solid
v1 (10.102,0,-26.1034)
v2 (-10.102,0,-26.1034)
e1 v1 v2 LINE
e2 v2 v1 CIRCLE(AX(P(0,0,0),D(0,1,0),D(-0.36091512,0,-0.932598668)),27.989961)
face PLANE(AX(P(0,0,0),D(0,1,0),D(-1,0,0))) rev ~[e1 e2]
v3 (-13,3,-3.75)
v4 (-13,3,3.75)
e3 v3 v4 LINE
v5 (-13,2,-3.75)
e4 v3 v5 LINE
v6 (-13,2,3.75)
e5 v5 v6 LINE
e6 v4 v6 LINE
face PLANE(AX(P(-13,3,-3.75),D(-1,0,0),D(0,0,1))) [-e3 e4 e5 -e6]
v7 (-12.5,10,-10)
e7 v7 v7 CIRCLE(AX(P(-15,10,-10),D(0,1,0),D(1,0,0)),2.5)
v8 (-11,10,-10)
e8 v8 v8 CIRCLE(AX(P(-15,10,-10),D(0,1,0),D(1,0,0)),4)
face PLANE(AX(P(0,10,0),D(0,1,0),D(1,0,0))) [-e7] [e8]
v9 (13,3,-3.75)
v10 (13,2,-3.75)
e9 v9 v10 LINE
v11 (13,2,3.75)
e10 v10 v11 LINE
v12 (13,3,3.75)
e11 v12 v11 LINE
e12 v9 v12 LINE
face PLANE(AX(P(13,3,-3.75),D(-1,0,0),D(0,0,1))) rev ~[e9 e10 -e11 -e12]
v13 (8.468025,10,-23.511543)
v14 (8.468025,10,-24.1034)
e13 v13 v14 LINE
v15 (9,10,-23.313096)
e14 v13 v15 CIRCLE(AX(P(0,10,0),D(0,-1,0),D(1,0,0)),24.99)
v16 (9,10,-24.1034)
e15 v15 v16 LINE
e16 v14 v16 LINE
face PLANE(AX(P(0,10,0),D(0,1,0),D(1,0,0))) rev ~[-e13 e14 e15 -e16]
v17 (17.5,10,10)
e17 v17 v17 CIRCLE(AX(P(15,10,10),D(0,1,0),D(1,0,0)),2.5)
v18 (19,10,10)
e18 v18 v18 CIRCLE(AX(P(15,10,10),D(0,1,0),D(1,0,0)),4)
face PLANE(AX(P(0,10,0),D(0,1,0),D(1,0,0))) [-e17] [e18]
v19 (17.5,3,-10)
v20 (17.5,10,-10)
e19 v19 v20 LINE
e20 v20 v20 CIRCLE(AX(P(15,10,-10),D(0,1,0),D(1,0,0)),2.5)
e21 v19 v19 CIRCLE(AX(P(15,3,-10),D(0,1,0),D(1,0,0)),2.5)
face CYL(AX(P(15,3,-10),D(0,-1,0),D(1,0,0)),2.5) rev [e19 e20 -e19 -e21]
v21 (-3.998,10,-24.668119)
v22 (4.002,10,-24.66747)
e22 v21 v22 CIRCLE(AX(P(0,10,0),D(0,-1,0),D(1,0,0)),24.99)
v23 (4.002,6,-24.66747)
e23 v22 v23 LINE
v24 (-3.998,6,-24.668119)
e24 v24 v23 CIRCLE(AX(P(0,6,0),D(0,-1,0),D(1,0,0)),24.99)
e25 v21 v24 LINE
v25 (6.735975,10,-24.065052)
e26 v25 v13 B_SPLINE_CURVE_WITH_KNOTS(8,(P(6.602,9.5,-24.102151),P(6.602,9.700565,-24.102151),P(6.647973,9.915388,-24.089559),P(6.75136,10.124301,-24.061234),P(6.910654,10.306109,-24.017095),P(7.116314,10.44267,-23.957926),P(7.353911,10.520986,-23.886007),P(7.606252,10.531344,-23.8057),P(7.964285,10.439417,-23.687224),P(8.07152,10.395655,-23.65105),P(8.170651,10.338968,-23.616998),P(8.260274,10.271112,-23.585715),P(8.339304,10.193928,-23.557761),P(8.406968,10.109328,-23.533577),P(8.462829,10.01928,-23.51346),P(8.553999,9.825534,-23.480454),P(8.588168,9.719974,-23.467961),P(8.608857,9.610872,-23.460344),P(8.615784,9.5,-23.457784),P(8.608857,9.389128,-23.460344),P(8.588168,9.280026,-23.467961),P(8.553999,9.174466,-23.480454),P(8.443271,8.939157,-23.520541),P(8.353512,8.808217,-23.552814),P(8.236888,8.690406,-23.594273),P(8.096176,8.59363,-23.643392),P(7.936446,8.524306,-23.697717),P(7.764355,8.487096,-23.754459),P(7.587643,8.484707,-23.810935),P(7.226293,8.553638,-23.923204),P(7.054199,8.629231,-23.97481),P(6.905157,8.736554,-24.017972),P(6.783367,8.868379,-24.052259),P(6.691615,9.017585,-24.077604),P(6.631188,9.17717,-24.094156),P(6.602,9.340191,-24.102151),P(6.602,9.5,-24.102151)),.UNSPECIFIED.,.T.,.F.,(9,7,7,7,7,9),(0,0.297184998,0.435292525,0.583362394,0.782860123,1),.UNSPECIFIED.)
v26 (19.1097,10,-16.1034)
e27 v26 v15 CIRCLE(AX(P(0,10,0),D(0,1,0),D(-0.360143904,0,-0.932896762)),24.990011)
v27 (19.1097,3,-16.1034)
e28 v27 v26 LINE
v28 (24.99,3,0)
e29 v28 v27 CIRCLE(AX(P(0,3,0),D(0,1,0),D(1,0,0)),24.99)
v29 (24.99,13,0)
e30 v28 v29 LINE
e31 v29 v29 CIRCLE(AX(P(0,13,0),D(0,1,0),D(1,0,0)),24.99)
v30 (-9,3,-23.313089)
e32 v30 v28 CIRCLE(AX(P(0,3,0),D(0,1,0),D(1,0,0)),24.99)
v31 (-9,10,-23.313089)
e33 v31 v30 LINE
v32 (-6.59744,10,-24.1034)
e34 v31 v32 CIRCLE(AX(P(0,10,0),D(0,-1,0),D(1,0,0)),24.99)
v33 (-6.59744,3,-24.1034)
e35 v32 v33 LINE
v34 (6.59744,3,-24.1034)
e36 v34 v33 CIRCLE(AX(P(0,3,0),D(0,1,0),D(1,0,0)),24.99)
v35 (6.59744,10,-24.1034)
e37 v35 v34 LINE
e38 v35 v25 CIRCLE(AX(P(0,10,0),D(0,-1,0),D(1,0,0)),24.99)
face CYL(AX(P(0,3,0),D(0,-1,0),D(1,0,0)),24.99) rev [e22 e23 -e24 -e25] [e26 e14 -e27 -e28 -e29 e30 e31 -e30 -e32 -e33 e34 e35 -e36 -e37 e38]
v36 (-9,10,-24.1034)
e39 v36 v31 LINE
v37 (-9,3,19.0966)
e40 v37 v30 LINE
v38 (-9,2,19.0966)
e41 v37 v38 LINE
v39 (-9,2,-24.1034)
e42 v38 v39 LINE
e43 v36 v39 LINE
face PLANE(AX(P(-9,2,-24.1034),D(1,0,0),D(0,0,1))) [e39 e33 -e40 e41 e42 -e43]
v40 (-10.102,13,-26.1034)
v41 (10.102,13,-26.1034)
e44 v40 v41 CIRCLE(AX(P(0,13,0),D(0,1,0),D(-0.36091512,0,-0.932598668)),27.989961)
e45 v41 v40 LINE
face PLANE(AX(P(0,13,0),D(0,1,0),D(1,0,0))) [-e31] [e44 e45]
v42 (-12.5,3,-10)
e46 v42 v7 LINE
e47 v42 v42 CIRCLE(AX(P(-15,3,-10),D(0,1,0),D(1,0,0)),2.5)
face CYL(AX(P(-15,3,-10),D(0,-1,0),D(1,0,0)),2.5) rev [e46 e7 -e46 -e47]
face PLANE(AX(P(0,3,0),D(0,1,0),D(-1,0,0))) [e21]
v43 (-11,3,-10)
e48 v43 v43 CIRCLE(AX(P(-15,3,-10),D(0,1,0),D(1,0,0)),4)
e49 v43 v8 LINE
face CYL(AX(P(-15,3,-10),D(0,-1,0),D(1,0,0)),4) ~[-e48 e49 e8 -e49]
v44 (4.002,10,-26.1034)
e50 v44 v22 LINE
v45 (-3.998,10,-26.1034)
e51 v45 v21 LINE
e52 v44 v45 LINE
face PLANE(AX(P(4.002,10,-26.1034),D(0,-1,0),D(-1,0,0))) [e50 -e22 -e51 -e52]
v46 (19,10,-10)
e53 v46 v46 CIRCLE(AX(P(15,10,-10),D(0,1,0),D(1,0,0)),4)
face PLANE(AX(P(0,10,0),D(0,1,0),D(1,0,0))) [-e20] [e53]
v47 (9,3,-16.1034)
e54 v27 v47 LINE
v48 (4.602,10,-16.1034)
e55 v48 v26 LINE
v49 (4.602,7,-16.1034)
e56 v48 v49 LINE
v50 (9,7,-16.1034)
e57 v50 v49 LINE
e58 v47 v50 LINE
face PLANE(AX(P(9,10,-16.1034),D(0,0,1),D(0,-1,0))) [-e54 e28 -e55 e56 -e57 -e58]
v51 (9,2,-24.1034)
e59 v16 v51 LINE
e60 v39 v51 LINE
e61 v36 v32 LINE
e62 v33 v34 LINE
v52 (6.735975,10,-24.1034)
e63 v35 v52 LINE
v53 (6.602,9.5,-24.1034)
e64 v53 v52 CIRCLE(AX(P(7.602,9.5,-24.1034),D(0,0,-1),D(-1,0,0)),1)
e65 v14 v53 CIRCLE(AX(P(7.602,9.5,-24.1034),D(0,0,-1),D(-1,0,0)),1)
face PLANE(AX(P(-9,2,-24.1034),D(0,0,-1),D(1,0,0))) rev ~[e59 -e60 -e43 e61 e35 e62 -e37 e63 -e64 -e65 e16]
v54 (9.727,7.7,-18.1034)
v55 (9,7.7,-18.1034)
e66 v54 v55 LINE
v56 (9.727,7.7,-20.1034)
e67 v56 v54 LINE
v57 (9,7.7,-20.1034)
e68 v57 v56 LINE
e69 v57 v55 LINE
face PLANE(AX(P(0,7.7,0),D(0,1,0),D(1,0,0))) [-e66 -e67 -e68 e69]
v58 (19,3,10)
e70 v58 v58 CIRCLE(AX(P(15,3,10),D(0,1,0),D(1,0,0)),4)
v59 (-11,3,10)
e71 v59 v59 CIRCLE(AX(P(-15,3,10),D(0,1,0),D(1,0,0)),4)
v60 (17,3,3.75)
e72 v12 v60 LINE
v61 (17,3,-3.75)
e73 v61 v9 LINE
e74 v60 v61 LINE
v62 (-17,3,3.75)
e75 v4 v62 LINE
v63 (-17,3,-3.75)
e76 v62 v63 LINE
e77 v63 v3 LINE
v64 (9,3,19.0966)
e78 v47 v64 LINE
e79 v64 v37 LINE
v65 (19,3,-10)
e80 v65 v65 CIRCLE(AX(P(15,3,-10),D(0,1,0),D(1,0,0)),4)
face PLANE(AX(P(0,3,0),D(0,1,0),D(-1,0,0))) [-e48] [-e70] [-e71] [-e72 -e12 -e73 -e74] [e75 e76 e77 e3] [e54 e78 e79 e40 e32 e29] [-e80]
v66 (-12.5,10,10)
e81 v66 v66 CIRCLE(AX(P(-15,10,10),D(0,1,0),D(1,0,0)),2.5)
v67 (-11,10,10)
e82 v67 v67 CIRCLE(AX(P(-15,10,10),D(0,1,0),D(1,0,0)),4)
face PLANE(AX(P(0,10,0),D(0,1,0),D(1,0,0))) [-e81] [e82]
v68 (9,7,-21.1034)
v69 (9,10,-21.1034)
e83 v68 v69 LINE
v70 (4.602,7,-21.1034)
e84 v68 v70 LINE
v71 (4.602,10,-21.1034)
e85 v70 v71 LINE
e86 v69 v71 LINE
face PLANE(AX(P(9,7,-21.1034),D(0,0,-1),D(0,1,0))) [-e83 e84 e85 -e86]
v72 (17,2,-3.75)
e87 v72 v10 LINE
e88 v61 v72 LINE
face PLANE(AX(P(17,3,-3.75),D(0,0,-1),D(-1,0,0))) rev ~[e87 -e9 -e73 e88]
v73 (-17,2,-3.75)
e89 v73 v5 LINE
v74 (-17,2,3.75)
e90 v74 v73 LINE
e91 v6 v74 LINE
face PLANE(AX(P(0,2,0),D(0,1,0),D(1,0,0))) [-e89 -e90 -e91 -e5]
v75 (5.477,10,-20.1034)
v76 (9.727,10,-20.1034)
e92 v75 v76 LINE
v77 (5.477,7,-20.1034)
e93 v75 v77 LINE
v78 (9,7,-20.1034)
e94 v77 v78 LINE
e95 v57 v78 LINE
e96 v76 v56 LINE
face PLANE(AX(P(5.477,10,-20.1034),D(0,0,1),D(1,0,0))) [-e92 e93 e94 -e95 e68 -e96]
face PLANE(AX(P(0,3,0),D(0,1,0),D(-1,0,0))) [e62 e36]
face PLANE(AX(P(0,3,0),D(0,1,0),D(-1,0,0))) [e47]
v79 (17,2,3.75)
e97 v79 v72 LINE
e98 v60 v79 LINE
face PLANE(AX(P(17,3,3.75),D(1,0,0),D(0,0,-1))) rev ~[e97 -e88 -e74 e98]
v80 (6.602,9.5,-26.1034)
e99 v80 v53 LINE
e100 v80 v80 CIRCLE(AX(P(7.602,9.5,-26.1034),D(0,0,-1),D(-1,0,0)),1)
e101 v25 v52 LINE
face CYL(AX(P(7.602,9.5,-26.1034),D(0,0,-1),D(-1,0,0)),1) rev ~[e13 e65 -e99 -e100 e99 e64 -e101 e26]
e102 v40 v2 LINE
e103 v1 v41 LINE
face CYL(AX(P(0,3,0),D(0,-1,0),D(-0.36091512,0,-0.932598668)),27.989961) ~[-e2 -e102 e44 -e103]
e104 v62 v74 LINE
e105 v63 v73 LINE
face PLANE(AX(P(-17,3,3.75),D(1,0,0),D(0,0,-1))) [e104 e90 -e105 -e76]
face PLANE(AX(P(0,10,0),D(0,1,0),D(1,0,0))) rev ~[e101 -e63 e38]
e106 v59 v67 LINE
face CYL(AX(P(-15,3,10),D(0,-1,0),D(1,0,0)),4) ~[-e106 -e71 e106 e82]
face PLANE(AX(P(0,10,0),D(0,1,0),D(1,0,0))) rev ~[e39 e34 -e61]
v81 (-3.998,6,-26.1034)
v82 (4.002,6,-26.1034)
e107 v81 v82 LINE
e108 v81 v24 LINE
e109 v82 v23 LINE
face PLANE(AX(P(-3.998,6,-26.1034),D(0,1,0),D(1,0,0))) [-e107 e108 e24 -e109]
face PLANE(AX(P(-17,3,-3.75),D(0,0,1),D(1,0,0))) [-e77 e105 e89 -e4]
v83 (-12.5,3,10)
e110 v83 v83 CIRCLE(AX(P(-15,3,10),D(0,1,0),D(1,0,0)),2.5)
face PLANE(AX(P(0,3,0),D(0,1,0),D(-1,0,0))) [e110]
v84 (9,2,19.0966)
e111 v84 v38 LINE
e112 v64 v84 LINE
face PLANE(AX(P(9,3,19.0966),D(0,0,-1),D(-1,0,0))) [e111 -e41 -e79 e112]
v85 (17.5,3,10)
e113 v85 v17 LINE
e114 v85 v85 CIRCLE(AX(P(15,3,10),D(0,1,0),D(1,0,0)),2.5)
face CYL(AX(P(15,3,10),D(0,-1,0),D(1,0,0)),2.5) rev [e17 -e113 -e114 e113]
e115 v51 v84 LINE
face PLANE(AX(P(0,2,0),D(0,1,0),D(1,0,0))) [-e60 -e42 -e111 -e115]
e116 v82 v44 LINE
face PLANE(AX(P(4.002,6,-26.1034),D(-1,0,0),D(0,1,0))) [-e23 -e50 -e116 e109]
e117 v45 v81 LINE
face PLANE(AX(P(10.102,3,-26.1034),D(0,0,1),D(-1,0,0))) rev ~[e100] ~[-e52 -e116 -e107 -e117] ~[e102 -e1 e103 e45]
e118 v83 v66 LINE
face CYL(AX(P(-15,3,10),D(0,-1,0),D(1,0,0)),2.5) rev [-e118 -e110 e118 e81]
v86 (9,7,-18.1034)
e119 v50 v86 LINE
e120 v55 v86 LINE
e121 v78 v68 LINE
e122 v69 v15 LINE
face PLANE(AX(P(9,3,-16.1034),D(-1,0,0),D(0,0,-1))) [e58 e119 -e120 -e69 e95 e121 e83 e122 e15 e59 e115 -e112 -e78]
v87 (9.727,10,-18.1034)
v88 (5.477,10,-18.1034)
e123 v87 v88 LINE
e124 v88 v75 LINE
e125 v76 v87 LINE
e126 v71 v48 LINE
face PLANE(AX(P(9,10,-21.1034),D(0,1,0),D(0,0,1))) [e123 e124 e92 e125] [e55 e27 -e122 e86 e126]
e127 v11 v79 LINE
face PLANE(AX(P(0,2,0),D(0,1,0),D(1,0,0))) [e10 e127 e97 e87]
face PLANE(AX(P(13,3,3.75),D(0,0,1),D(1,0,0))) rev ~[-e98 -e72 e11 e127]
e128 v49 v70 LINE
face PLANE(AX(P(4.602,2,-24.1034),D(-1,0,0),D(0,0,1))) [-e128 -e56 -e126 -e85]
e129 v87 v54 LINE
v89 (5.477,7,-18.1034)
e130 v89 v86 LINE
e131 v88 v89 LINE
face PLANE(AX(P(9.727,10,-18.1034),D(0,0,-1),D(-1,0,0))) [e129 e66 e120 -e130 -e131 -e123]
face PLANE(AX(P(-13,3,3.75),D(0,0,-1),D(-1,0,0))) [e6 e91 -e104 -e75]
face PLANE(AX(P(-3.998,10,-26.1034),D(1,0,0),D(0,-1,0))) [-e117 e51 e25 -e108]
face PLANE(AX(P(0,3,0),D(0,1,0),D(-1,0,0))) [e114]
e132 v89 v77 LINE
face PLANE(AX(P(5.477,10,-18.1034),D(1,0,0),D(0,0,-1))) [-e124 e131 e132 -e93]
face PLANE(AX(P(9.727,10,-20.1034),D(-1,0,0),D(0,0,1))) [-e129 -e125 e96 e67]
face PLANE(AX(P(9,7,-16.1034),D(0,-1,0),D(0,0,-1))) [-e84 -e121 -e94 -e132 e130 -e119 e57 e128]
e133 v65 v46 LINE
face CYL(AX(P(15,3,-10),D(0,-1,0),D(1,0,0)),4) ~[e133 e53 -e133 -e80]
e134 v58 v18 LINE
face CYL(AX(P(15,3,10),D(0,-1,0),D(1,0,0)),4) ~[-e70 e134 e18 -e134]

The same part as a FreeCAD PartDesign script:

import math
import FreeCAD as App
import Part
import Sketcher

V = App.Vector
Q = App.Units.Quantity

doc = App.newDocument("Part")
params = doc.addObject("Spreadsheet::Sheet", "Params")
for row, (alias, value) in enumerate([
    ("sketch1_radius", "27.99 mm"),
    ("pad1_length", "3 mm"),
    ("sketch2_diameter", "49.98 mm"),
    ("sketch2_radius", "27.99 mm"),
    ("pad2_length", "10 mm"),
    ("sketch3_diameter", "8 mm"),
    ("sketch3_diameter2", "5 mm"),
    ("pad3_length", "7 mm"),
    ("sketch4_width", "18 mm"),
    ("sketch4_width2", "4 mm"),
    ("sketch4_height", "43.2 mm"),
    ("sketch4_height2", "7.5 mm"),
    ("pocket1_length", "1 mm"),
    ("sketch5_width", "18 mm"),
    ("sketch5_height", "43.2 mm"),
    ("pocket2_length", "8 mm"),
    ("sketch6_diameter", "2 mm"),
    ("sketch6_width", "8 mm"),
    ("sketch6_height", "4 mm"),
    ("pocket3_length", "10 mm"),
    ("sketch7_radius", "24.99 mm"),
    ("pad4_length", "7 mm"),
    ("sketch8_width", "3 mm"),
    ("sketch8_height", "5 mm"),
    ("pad5_length", "4.398 mm"),
    ("sketch9_height", "2 mm"),
    ("sketch9_width", "4.25 mm"),
    ("pocket4_length", "2.3 mm"),
    ("sketch10_height", "2 mm"),
], start=1):
    params.set(f"A{row}", alias)
    params.set(f"B{row}", "=" + value)
    params.setAlias(f"B{row}", alias)

body = doc.addObject("PartDesign::Body", "Body")

# Sketch on XZ plane
sketch1 = doc.addObject("Sketcher::SketchObject", "Sketch")
body.addObject(sketch1)
sketch1.AttachmentSupport = (doc.XZ_Plane, [""])
sketch1.MapMode = "FlatFace"
sketch1.addGeometry(Part.ArcOfCircle(Part.Circle(V(0, 0, 0), V(0, 0, 1), 28), math.radians(-69), math.radians(249)), False)
sketch1.addGeometry(Part.LineSegment(V(10, -26, 0), V(-10, -26, 0)), False)
sketch1.addConstraint(Sketcher.Constraint("Coincident", 0, 1, 1, 1))
sketch1.addConstraint(Sketcher.Constraint("Coincident", 1, 2, 0, 2))
sketch1.addConstraint(Sketcher.Constraint("Horizontal", 1))
sketch1.addConstraint(Sketcher.Constraint("Coincident", 0, 3, -1, 1))
sketch1.addConstraint(Sketcher.Constraint("DistanceX", 1, 2, 1, 1, Q("20.204 mm")))
sketch1.addConstraint(Sketcher.Constraint("Radius", 0, Q("27.99 mm")))
sketch1.setExpression("Constraints[5]", "Params.sketch1_radius")
pad1 = doc.addObject("PartDesign::Pad", "Pad")
body.addObject(pad1)
pad1.Profile = sketch1
pad1.setExpression("Length", "Params.pad1_length")
pad1.Reversed = True

# Sketch on XZ plane
sketch2 = doc.addObject("Sketcher::SketchObject", "Sketch001")
body.addObject(sketch2)
sketch2.AttachmentSupport = (doc.XZ_Plane, [""])
sketch2.MapMode = "FlatFace"
sketch2.AttachmentOffset = App.Placement(V(0, 0, -3), App.Rotation())
sketch2.addGeometry(Part.ArcOfCircle(Part.Circle(V(0, 0, 0), V(0, 0, 1), 28), math.radians(-69), math.radians(249)), False)
sketch2.addGeometry(Part.LineSegment(V(10, -26, 0), V(-10, -26, 0)), False)
sketch2.addGeometry(Part.Circle(V(0, 0, 0), V(0, 0, 1), 25), False)
sketch2.addConstraint(Sketcher.Constraint("Coincident", 0, 1, 1, 1))
sketch2.addConstraint(Sketcher.Constraint("Coincident", 1, 2, 0, 2))
sketch2.addConstraint(Sketcher.Constraint("Horizontal", 1))
sketch2.addConstraint(Sketcher.Constraint("Coincident", 0, 3, -1, 1))
sketch2.addConstraint(Sketcher.Constraint("Coincident", 2, 3, -1, 1))
sketch2.addConstraint(Sketcher.Constraint("Diameter", 2, Q("49.98 mm")))
sketch2.addConstraint(Sketcher.Constraint("Radius", 0, Q("27.99 mm")))
sketch2.addConstraint(Sketcher.Constraint("DistanceX", 1, 2, 1, 1, Q("20.204 mm")))
sketch2.setExpression("Constraints[5]", "Params.sketch2_diameter")
sketch2.setExpression("Constraints[6]", "Params.sketch2_radius")
pad2 = doc.addObject("PartDesign::Pad", "Pad001")
body.addObject(pad2)
pad2.Profile = sketch2
pad2.setExpression("Length", "Params.pad2_length")
pad2.Reversed = True

# Sketch on XZ plane
sketch3 = doc.addObject("Sketcher::SketchObject", "Sketch002")
body.addObject(sketch3)
sketch3.AttachmentSupport = (doc.XZ_Plane, [""])
sketch3.MapMode = "FlatFace"
sketch3.AttachmentOffset = App.Placement(V(0, 0, -3), App.Rotation())
sketch3.addGeometry(Part.Circle(V(-15, -10, 0), V(0, 0, 1), 4), False)
sketch3.addGeometry(Part.Circle(V(-15, -10, 0), V(0, 0, 1), 2.5), False)
sketch3.addGeometry(Part.Circle(V(-15, 10, 0), V(0, 0, 1), 4), False)
sketch3.addGeometry(Part.Circle(V(-15, 10, 0), V(0, 0, 1), 2.5), False)
sketch3.addGeometry(Part.Circle(V(15, -10, 0), V(0, 0, 1), 4), False)
sketch3.addGeometry(Part.Circle(V(15, -10, 0), V(0, 0, 1), 2.5), False)
sketch3.addGeometry(Part.Circle(V(15, 10, 0), V(0, 0, 1), 4), False)
sketch3.addGeometry(Part.Circle(V(15, 10, 0), V(0, 0, 1), 2.5), False)
sketch3.addConstraint(Sketcher.Constraint("Coincident", 1, 3, 0, 3))
sketch3.addConstraint(Sketcher.Constraint("Coincident", 3, 3, 2, 3))
sketch3.addConstraint(Sketcher.Constraint("Coincident", 5, 3, 4, 3))
sketch3.addConstraint(Sketcher.Constraint("Coincident", 7, 3, 6, 3))
sketch3.addConstraint(Sketcher.Constraint("Equal", 0, 2))
sketch3.addConstraint(Sketcher.Constraint("Equal", 1, 3))
sketch3.addConstraint(Sketcher.Constraint("Equal", 2, 4))
sketch3.addConstraint(Sketcher.Constraint("Equal", 3, 5))
sketch3.addConstraint(Sketcher.Constraint("Equal", 4, 6))
sketch3.addConstraint(Sketcher.Constraint("Equal", 5, 7))
sketch3.addConstraint(Sketcher.Constraint("Symmetric", 2, 3, 4, 3, -1, 1))
sketch3.addConstraint(Sketcher.Constraint("Symmetric", 0, 3, 6, 3, -1, 1))
sketch3.addConstraint(Sketcher.Constraint("Symmetric", 0, 3, 4, 3, -2))
sketch3.addConstraint(Sketcher.Constraint("Diameter", 0, Q("8 mm")))
sketch3.addConstraint(Sketcher.Constraint("Diameter", 1, Q("5 mm")))
sketch3.addConstraint(Sketcher.Constraint("DistanceX", 0, 3, -1, 1, Q("15 mm")))
sketch3.addConstraint(Sketcher.Constraint("DistanceY", 0, 3, -1, 1, Q("10 mm")))
sketch3.setExpression("Constraints[13]", "Params.sketch3_diameter")
sketch3.setExpression("Constraints[14]", "Params.sketch3_diameter2")
pad3 = doc.addObject("PartDesign::Pad", "Pad002")
body.addObject(pad3)
pad3.Profile = sketch3
pad3.setExpression("Length", "Params.pad3_length")
pad3.Reversed = True

# Sketch on XZ plane
sketch4 = doc.addObject("Sketcher::SketchObject", "Sketch003")
body.addObject(sketch4)
sketch4.AttachmentSupport = (doc.XZ_Plane, [""])
sketch4.MapMode = "FlatFace"
sketch4.AttachmentOffset = App.Placement(V(0, 0, -3), App.Rotation())
sketch4.addGeometry(Part.LineSegment(V(9, -24.1, 0), V(-9, -24.1, 0)), False)
sketch4.addGeometry(Part.LineSegment(V(-9, -24.1, 0), V(-9, 19.1, 0)), False)
sketch4.addGeometry(Part.LineSegment(V(-9, 19.1, 0), V(9, 19.1, 0)), False)
sketch4.addGeometry(Part.LineSegment(V(9, 19.1, 0), V(9, -24.1, 0)), False)
sketch4.addGeometry(Part.LineSegment(V(-13, -3.8, 0), V(-17, -3.8, 0)), False)
sketch4.addGeometry(Part.LineSegment(V(-17, -3.8, 0), V(-17, 3.8, 0)), False)
sketch4.addGeometry(Part.LineSegment(V(-17, 3.8, 0), V(-13, 3.8, 0)), False)
sketch4.addGeometry(Part.LineSegment(V(-13, 3.8, 0), V(-13, -3.8, 0)), False)
sketch4.addGeometry(Part.LineSegment(V(17, 3.8, 0), V(17, -3.8, 0)), False)
sketch4.addGeometry(Part.LineSegment(V(17, -3.8, 0), V(13, -3.8, 0)), False)
sketch4.addGeometry(Part.LineSegment(V(13, -3.8, 0), V(13, 3.8, 0)), False)
sketch4.addGeometry(Part.LineSegment(V(13, 3.8, 0), V(17, 3.8, 0)), False)
sketch4.addConstraint(Sketcher.Constraint("Coincident", 0, 2, 1, 1))
sketch4.addConstraint(Sketcher.Constraint("Coincident", 1, 2, 2, 1))
sketch4.addConstraint(Sketcher.Constraint("Coincident", 2, 2, 3, 1))
sketch4.addConstraint(Sketcher.Constraint("Coincident", 3, 2, 0, 1))
sketch4.addConstraint(Sketcher.Constraint("Coincident", 4, 2, 5, 1))
sketch4.addConstraint(Sketcher.Constraint("Coincident", 5, 2, 6, 1))
sketch4.addConstraint(Sketcher.Constraint("Coincident", 6, 2, 7, 1))
sketch4.addConstraint(Sketcher.Constraint("Coincident", 7, 2, 4, 1))
sketch4.addConstraint(Sketcher.Constraint("Coincident", 8, 2, 9, 1))
sketch4.addConstraint(Sketcher.Constraint("Coincident", 9, 2, 10, 1))
sketch4.addConstraint(Sketcher.Constraint("Coincident", 10, 2, 11, 1))
sketch4.addConstraint(Sketcher.Constraint("Coincident", 11, 2, 8, 1))
sketch4.addConstraint(Sketcher.Constraint("Horizontal", 0))
sketch4.addConstraint(Sketcher.Constraint("Vertical", 1))
sketch4.addConstraint(Sketcher.Constraint("Horizontal", 2))
sketch4.addConstraint(Sketcher.Constraint("Vertical", 3))
sketch4.addConstraint(Sketcher.Constraint("Horizontal", 4))
sketch4.addConstraint(Sketcher.Constraint("Vertical", 5))
sketch4.addConstraint(Sketcher.Constraint("Horizontal", 6))
sketch4.addConstraint(Sketcher.Constraint("Vertical", 7))
sketch4.addConstraint(Sketcher.Constraint("Vertical", 8))
sketch4.addConstraint(Sketcher.Constraint("Horizontal", 9))
sketch4.addConstraint(Sketcher.Constraint("Vertical", 10))
sketch4.addConstraint(Sketcher.Constraint("Horizontal", 11))
sketch4.addConstraint(Sketcher.Constraint("Symmetric", 5, 2, 8, 2, -1, 1))
sketch4.addConstraint(Sketcher.Constraint("Symmetric", 7, 2, 10, 2, -1, 1))
sketch4.addConstraint(Sketcher.Constraint("Horizontal", 7, 2, 8, 2))
sketch4.addConstraint(Sketcher.Constraint("DistanceX", 0, 2, 0, 1, Q("18 mm")))
sketch4.addConstraint(Sketcher.Constraint("DistanceX", 4, 2, 4, 1, Q("4 mm")))
sketch4.addConstraint(Sketcher.Constraint("DistanceY", 1, 1, 1, 2, Q("43.2 mm")))
sketch4.addConstraint(Sketcher.Constraint("DistanceY", 5, 1, 5, 2, Q("7.5 mm")))
sketch4.addConstraint(Sketcher.Constraint("DistanceX", 0, 2, -1, 1, Q("9 mm")))
sketch4.addConstraint(Sketcher.Constraint("DistanceX", 6, 2, -1, 1, Q("13 mm")))
sketch4.addConstraint(Sketcher.Constraint("DistanceY", 0, 2, -1, 1, Q("24.1034 mm")))
sketch4.setExpression("Constraints[27]", "Params.sketch4_width")
sketch4.setExpression("Constraints[28]", "Params.sketch4_width2")
sketch4.setExpression("Constraints[29]", "Params.sketch4_height")
sketch4.setExpression("Constraints[30]", "Params.sketch4_height2")
pocket1 = doc.addObject("PartDesign::Pocket", "Pocket")
body.addObject(pocket1)
pocket1.Profile = sketch4
pocket1.setExpression("Length", "Params.pocket1_length")
pocket1.Reversed = True

# Sketch on XZ plane
sketch5 = doc.addObject("Sketcher::SketchObject", "Sketch004")
body.addObject(sketch5)
sketch5.AttachmentSupport = (doc.XZ_Plane, [""])
sketch5.MapMode = "FlatFace"
sketch5.AttachmentOffset = App.Placement(V(0, 0, -2), App.Rotation())
sketch5.addGeometry(Part.LineSegment(V(9, -24, 0), V(-9, -24, 0)), False)
sketch5.addGeometry(Part.LineSegment(V(-9, -24, 0), V(-9, 19, 0)), False)
sketch5.addGeometry(Part.LineSegment(V(-9, 19, 0), V(9, 19, 0)), False)
sketch5.addGeometry(Part.LineSegment(V(9, 19, 0), V(9, -24, 0)), False)
sketch5.addConstraint(Sketcher.Constraint("Coincident", 0, 2, 1, 1))
sketch5.addConstraint(Sketcher.Constraint("Coincident", 1, 2, 2, 1))
sketch5.addConstraint(Sketcher.Constraint("Coincident", 2, 2, 3, 1))
sketch5.addConstraint(Sketcher.Constraint("Coincident", 3, 2, 0, 1))
sketch5.addConstraint(Sketcher.Constraint("Horizontal", 0))
sketch5.addConstraint(Sketcher.Constraint("Vertical", 1))
sketch5.addConstraint(Sketcher.Constraint("Horizontal", 2))
sketch5.addConstraint(Sketcher.Constraint("Vertical", 3))
sketch5.addConstraint(Sketcher.Constraint("DistanceX", 0, 2, 0, 1, Q("18 mm")))
sketch5.addConstraint(Sketcher.Constraint("DistanceY", 1, 1, 1, 2, Q("43.2 mm")))
sketch5.addConstraint(Sketcher.Constraint("DistanceX", 0, 2, -1, 1, Q("9 mm")))
sketch5.addConstraint(Sketcher.Constraint("DistanceY", 0, 2, -1, 1, Q("24.1034 mm")))
sketch5.setExpression("Constraints[8]", "Params.sketch5_width")
sketch5.setExpression("Constraints[9]", "Params.sketch5_height")
pocket2 = doc.addObject("PartDesign::Pocket", "Pocket001")
body.addObject(pocket2)
pocket2.Profile = sketch5
pocket2.setExpression("Length", "Params.pocket2_length")

# Sketch on XY plane
sketch6 = doc.addObject("Sketcher::SketchObject", "Sketch005")
body.addObject(sketch6)
sketch6.AttachmentSupport = (doc.XY_Plane, [""])
sketch6.MapMode = "FlatFace"
sketch6.AttachmentOffset = App.Placement(V(0, 0, -26.1034), App.Rotation())
sketch6.addGeometry(Part.LineSegment(V(-4, 10, 0), V(4, 10, 0)), False)
sketch6.addGeometry(Part.LineSegment(V(4, 10, 0), V(4, 6, 0)), False)
sketch6.addGeometry(Part.LineSegment(V(4, 6, 0), V(-4, 6, 0)), False)
sketch6.addGeometry(Part.LineSegment(V(-4, 6, 0), V(-4, 10, 0)), False)
sketch6.addGeometry(Part.Circle(V(7.6, 9.5, 0), V(0, 0, 1), 1), False)
sketch6.addConstraint(Sketcher.Constraint("Coincident", 0, 2, 1, 1))
sketch6.addConstraint(Sketcher.Constraint("Coincident", 1, 2, 2, 1))
sketch6.addConstraint(Sketcher.Constraint("Coincident", 2, 2, 3, 1))
sketch6.addConstraint(Sketcher.Constraint("Coincident", 3, 2, 0, 1))
sketch6.addConstraint(Sketcher.Constraint("Horizontal", 0))
sketch6.addConstraint(Sketcher.Constraint("Vertical", 1))
sketch6.addConstraint(Sketcher.Constraint("Horizontal", 2))
sketch6.addConstraint(Sketcher.Constraint("Vertical", 3))
sketch6.addConstraint(Sketcher.Constraint("Diameter", 4, Q("2 mm")))
sketch6.addConstraint(Sketcher.Constraint("DistanceX", 0, 1, 0, 2, Q("8 mm")))
sketch6.addConstraint(Sketcher.Constraint("DistanceY", 1, 2, 1, 1, Q("4 mm")))
sketch6.addConstraint(Sketcher.Constraint("DistanceY", -1, 1, 0, 2, Q("10 mm")))
sketch6.addConstraint(Sketcher.Constraint("DistanceY", -1, 1, 4, 3, Q("9.5 mm")))
sketch6.addConstraint(Sketcher.Constraint("DistanceX", 0, 2, 4, 3, Q("3.6 mm")))
sketch6.addConstraint(Sketcher.Constraint("DistanceX", -1, 1, 4, 3, Q("7.602 mm")))
sketch6.setExpression("Constraints[8]", "Params.sketch6_diameter")
sketch6.setExpression("Constraints[9]", "Params.sketch6_width")
sketch6.setExpression("Constraints[10]", "Params.sketch6_height")
pocket3 = doc.addObject("PartDesign::Pocket", "Pocket002")
body.addObject(pocket3)
pocket3.Profile = sketch6
pocket3.setExpression("Length", "Params.pocket3_length")
pocket3.Reversed = True

# Sketch on XZ plane
sketch7 = doc.addObject("Sketcher::SketchObject", "Sketch006")
body.addObject(sketch7)
sketch7.AttachmentSupport = (doc.XZ_Plane, [""])
sketch7.MapMode = "FlatFace"
sketch7.AttachmentOffset = App.Placement(V(0, 0, -3), App.Rotation())
sketch7.addGeometry(Part.LineSegment(V(9, -16, 0), V(19, -16, 0)), False)
sketch7.addGeometry(Part.ArcOfCircle(Part.Circle(V(0, 0, 0), V(0, 0, 1), 25), math.radians(-69), math.radians(-40)), False)
sketch7.addGeometry(Part.LineSegment(V(9, -23, 0), V(9, -16, 0)), False)
sketch7.addConstraint(Sketcher.Constraint("Coincident", 0, 2, 1, 2))
sketch7.addConstraint(Sketcher.Constraint("Coincident", 1, 1, 2, 1))
sketch7.addConstraint(Sketcher.Constraint("Coincident", 2, 2, 0, 1))
sketch7.addConstraint(Sketcher.Constraint("Horizontal", 0))
sketch7.addConstraint(Sketcher.Constraint("Vertical", 2))
sketch7.addConstraint(Sketcher.Constraint("Coincident", 1, 3, -1, 1))
sketch7.addConstraint(Sketcher.Constraint("Radius", 1, Q("24.99 mm")))
sketch7.addConstraint(Sketcher.Constraint("DistanceX", -1, 1, 1, 1, Q("9 mm")))
sketch7.addConstraint(Sketcher.Constraint("DistanceX", 0, 1, 0, 2, Q("10.1097 mm")))
sketch7.setExpression("Constraints[6]", "Params.sketch7_radius")
pad4 = doc.addObject("PartDesign::Pad", "Pad003")
body.addObject(pad4)
pad4.Profile = sketch7
pad4.setExpression("Length", "Params.pad4_length")
pad4.Reversed = True

# Sketch on YZ plane
sketch8 = doc.addObject("Sketcher::SketchObject", "Sketch007")
body.addObject(sketch8)
sketch8.AttachmentSupport = (doc.YZ_Plane, [""])
sketch8.MapMode = "FlatFace"
sketch8.AttachmentOffset = App.Placement(V(0, 0, 9), App.Rotation())
sketch8.addGeometry(Part.LineSegment(V(10, -16.1, 0), V(10, -21.1, 0)), False)
sketch8.addGeometry(Part.LineSegment(V(10, -21.1, 0), V(7, -21.1, 0)), False)
sketch8.addGeometry(Part.LineSegment(V(7, -21.1, 0), V(7, -16.1, 0)), False)
sketch8.addGeometry(Part.LineSegment(V(7, -16.1, 0), V(10, -16.1, 0)), False)
sketch8.addConstraint(Sketcher.Constraint("Coincident", 0, 2, 1, 1))
sketch8.addConstraint(Sketcher.Constraint("Coincident", 1, 2, 2, 1))
sketch8.addConstraint(Sketcher.Constraint("Coincident", 2, 2, 3, 1))
sketch8.addConstraint(Sketcher.Constraint("Coincident", 3, 2, 0, 1))
sketch8.addConstraint(Sketcher.Constraint("Vertical", 0))
sketch8.addConstraint(Sketcher.Constraint("Horizontal", 1))
sketch8.addConstraint(Sketcher.Constraint("Vertical", 2))
sketch8.addConstraint(Sketcher.Constraint("Horizontal", 3))
sketch8.addConstraint(Sketcher.Constraint("DistanceX", 1, 2, 1, 1, Q("3 mm")))
sketch8.addConstraint(Sketcher.Constraint("DistanceY", 0, 2, 0, 1, Q("5 mm")))
sketch8.addConstraint(Sketcher.Constraint("DistanceX", -1, 1, 0, 2, Q("10 mm")))
sketch8.addConstraint(Sketcher.Constraint("DistanceY", 0, 2, -1, 1, Q("21.1034 mm")))
sketch8.setExpression("Constraints[8]", "Params.sketch8_width")
sketch8.setExpression("Constraints[9]", "Params.sketch8_height")
pad5 = doc.addObject("PartDesign::Pad", "Pad004")
body.addObject(pad5)
pad5.Profile = sketch8
pad5.setExpression("Length", "Params.pad5_length")
pad5.Reversed = True

# Sketch on XZ plane
sketch9 = doc.addObject("Sketcher::SketchObject", "Sketch008")
body.addObject(sketch9)
sketch9.AttachmentSupport = (doc.XZ_Plane, [""])
sketch9.MapMode = "FlatFace"
sketch9.AttachmentOffset = App.Placement(V(0, 0, -10), App.Rotation())
sketch9.addGeometry(Part.LineSegment(V(5.5, -18.1, 0), V(9.7, -18.1, 0)), False)
sketch9.addGeometry(Part.LineSegment(V(9.7, -18.1, 0), V(9.7, -20.1, 0)), False)
sketch9.addGeometry(Part.LineSegment(V(9.7, -20.1, 0), V(5.5, -20.1, 0)), False)
sketch9.addGeometry(Part.LineSegment(V(5.5, -20.1, 0), V(5.5, -18.1, 0)), False)
sketch9.addConstraint(Sketcher.Constraint("Coincident", 0, 2, 1, 1))
sketch9.addConstraint(Sketcher.Constraint("Coincident", 1, 2, 2, 1))
sketch9.addConstraint(Sketcher.Constraint("Coincident", 2, 2, 3, 1))
sketch9.addConstraint(Sketcher.Constraint("Coincident", 3, 2, 0, 1))
sketch9.addConstraint(Sketcher.Constraint("Horizontal", 0))
sketch9.addConstraint(Sketcher.Constraint("Vertical", 1))
sketch9.addConstraint(Sketcher.Constraint("Horizontal", 2))
sketch9.addConstraint(Sketcher.Constraint("Vertical", 3))
sketch9.addConstraint(Sketcher.Constraint("DistanceY", 1, 2, 1, 1, Q("2 mm")))
sketch9.addConstraint(Sketcher.Constraint("DistanceX", 0, 1, 0, 2, Q("4.25 mm")))
sketch9.addConstraint(Sketcher.Constraint("DistanceX", -1, 1, 0, 2, Q("9.727 mm")))
sketch9.addConstraint(Sketcher.Constraint("DistanceY", 0, 2, -1, 1, Q("18.1034 mm")))
sketch9.setExpression("Constraints[8]", "Params.sketch9_height")
sketch9.setExpression("Constraints[9]", "Params.sketch9_width")
pocket4 = doc.addObject("PartDesign::Pocket", "Pocket003")
body.addObject(pocket4)
pocket4.Profile = sketch9
pocket4.setExpression("Length", "Params.pocket4_length")
pocket4.Reversed = True

# Sketch on XZ plane
sketch10 = doc.addObject("Sketcher::SketchObject", "Sketch009")
body.addObject(sketch10)
sketch10.AttachmentSupport = (doc.XZ_Plane, [""])
sketch10.MapMode = "FlatFace"
sketch10.AttachmentOffset = App.Placement(V(0, 0, -7.7), App.Rotation())
sketch10.addGeometry(Part.LineSegment(V(9, -18.1, 0), V(9, -20.1, 0)), False)
sketch10.addGeometry(Part.LineSegment(V(9, -20.1, 0), V(5.5, -20.1, 0)), False)
sketch10.addGeometry(Part.LineSegment(V(5.5, -20.1, 0), V(5.5, -18.1, 0)), False)
sketch10.addGeometry(Part.LineSegment(V(5.5, -18.1, 0), V(9, -18.1, 0)), False)
sketch10.addConstraint(Sketcher.Constraint("Coincident", 0, 2, 1, 1))
sketch10.addConstraint(Sketcher.Constraint("Coincident", 1, 2, 2, 1))
sketch10.addConstraint(Sketcher.Constraint("Coincident", 2, 2, 3, 1))
sketch10.addConstraint(Sketcher.Constraint("Coincident", 3, 2, 0, 1))
sketch10.addConstraint(Sketcher.Constraint("Vertical", 0))
sketch10.addConstraint(Sketcher.Constraint("Horizontal", 1))
sketch10.addConstraint(Sketcher.Constraint("Vertical", 2))
sketch10.addConstraint(Sketcher.Constraint("Horizontal", 3))
sketch10.addConstraint(Sketcher.Constraint("DistanceY", 0, 2, 0, 1, Q("2 mm")))
sketch10.addConstraint(Sketcher.Constraint("DistanceX", -1, 1, 0, 2, Q("9 mm")))
sketch10.addConstraint(Sketcher.Constraint("DistanceX", 1, 2, 1, 1, Q("3.523 mm")))
sketch10.addConstraint(Sketcher.Constraint("DistanceY", 0, 2, -1, 1, Q("20.1034 mm")))
sketch10.setExpression("Constraints[8]", "Params.sketch10_height")
pocket5 = doc.addObject("PartDesign::Pocket", "Pocket004")
body.addObject(pocket5)
pocket5.Profile = sketch10
pocket5.Type = "UpToFirst"
pocket5.Reversed = True

doc.recompute()
